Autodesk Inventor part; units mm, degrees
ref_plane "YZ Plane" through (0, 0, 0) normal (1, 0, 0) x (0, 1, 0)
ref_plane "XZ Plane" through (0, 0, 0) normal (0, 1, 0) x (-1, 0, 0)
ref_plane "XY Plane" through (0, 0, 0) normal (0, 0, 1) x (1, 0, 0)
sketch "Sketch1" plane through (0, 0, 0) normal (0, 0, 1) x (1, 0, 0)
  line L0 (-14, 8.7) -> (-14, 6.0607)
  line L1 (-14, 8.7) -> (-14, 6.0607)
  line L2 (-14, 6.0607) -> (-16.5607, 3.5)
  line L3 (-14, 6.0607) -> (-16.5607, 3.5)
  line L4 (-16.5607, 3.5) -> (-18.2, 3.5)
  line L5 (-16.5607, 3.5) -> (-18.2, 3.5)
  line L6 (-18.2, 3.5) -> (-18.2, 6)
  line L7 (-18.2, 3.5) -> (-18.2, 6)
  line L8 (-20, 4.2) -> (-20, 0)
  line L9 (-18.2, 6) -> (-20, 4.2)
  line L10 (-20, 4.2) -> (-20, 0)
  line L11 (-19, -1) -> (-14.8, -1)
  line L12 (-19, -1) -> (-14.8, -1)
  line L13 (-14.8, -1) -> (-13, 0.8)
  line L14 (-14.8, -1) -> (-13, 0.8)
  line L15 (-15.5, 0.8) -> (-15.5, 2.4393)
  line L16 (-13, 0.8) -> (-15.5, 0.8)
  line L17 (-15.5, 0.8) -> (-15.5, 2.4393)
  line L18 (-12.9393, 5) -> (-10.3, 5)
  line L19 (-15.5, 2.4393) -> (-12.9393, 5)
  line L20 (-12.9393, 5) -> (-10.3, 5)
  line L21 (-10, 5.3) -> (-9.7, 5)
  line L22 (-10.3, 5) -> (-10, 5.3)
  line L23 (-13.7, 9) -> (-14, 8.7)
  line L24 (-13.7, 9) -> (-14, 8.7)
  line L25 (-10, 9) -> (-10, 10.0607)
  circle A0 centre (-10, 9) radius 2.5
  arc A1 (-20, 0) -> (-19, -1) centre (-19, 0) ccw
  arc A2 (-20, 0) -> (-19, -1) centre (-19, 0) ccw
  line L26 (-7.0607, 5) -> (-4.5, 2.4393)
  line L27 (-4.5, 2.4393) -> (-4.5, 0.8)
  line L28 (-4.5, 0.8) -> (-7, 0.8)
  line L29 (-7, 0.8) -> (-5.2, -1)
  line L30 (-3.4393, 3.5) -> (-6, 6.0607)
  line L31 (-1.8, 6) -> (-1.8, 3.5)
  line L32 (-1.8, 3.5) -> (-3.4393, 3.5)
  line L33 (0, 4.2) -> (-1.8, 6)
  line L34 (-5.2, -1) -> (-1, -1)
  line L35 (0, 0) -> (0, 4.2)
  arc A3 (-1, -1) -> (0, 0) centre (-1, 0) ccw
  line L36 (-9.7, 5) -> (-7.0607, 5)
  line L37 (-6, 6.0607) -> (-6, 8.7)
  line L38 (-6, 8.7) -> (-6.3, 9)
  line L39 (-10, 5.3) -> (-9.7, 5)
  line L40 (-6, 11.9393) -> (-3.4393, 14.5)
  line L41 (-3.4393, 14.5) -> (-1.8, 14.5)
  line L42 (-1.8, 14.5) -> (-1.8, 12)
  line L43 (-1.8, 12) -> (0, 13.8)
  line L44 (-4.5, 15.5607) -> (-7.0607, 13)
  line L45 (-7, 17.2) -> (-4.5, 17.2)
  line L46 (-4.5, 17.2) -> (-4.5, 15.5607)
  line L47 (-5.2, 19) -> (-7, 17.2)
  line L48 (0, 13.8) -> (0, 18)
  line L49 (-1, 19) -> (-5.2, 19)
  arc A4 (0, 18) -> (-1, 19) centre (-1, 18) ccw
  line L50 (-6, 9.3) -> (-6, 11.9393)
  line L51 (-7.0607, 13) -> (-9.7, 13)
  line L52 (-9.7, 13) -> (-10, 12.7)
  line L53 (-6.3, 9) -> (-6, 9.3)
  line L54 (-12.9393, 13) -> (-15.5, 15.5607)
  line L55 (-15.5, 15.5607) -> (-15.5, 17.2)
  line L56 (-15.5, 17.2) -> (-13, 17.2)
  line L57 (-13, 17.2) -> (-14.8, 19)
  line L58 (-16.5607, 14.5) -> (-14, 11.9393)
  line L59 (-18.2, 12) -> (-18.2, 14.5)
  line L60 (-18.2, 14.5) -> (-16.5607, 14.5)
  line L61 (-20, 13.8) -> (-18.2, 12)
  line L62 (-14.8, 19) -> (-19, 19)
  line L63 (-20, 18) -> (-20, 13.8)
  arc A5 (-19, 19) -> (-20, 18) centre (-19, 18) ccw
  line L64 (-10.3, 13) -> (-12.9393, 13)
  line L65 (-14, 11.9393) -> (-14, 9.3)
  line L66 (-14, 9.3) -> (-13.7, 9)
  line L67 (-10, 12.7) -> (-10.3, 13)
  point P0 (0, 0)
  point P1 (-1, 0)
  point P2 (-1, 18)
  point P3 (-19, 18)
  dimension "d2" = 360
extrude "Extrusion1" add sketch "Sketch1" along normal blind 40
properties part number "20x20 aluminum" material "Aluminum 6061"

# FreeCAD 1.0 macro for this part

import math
import FreeCAD as App
import Part
import Sketcher
from FreeCAD import Vector
Q = App.Units.Quantity

doc = App.newDocument("Part")
params = doc.addObject("Spreadsheet::Sheet", "Params")
for row, (alias, value) in enumerate([
    ("sketch1_diameter", "5 mm"),
    ("sketch1_radius", "1 mm"),
    ("sketch1_width", "4.2 mm"),
    ("sketch1_width2", "2.5 mm"),
    ("pad1_length", "40 mm"),
], start=1):
    params.set(f"A{row}", alias)
    params.set(f"B{row}", "=" + value)
    params.setAlias(f"B{row}", alias)

body = doc.addObject("PartDesign::Body", "Body")

# Sketch on XY plane
sketch1 = body.newObject("Sketcher::SketchObject", "Sketch")
sketch1.AttachmentSupport = (doc.getObject("XY_Plane"), [""])
sketch1.MapMode = "FlatFace"
sketch1.addGeometry(Part.LineSegment(Vector(-13.7, 9, 0), Vector(-14, 8.7, 0)), False)
sketch1.addGeometry(Part.LineSegment(Vector(-14, 8.7, 0), Vector(-14, 6.06, 0)), False)
sketch1.addGeometry(Part.LineSegment(Vector(-14, 6.06, 0), Vector(-16.56, 3.5, 0)), False)
sketch1.addGeometry(Part.LineSegment(Vector(-16.56, 3.5, 0), Vector(-18.2, 3.5, 0)), False)
sketch1.addGeometry(Part.LineSegment(Vector(-18.2, 3.5, 0), Vector(-18.2, 6, 0)), False)
sketch1.addGeometry(Part.LineSegment(Vector(-18.2, 6, 0), Vector(-20, 4.2, 0)), False)
sketch1.addGeometry(Part.LineSegment(Vector(-20, 4.2, 0), Vector(-20, 0, 0)), False)
sketch1.addGeometry(Part.ArcOfCircle(Part.Circle(Vector(-19, 0, 0), Vector(0, 0, 1), 1), math.radians(180), math.radians(270)), False)
sketch1.addGeometry(Part.LineSegment(Vector(-19, -1, 0), Vector(-14.8, -1, 0)), False)
sketch1.addGeometry(Part.LineSegment(Vector(-14.8, -1, 0), Vector(-13, 0.8, 0)), False)
sketch1.addGeometry(Part.LineSegment(Vector(-13, 0.8, 0), Vector(-15.5, 0.8, 0)), False)
sketch1.addGeometry(Part.LineSegment(Vector(-15.5, 0.8, 0), Vector(-15.5, 2.44, 0)), False)
sketch1.addGeometry(Part.LineSegment(Vector(-15.5, 2.44, 0), Vector(-12.94, 5, 0)), False)
sketch1.addGeometry(Part.LineSegment(Vector(-12.94, 5, 0), Vector(-10.3, 5, 0)), False)
sketch1.addGeometry(Part.LineSegment(Vector(-10.3, 5, 0), Vector(-10, 5.3, 0)), False)
sketch1.addGeometry(Part.LineSegment(Vector(-10, 5.3, 0), Vector(-9.7, 5, 0)), False)
sketch1.addGeometry(Part.LineSegment(Vector(-9.7, 5, 0), Vector(-7.06, 5, 0)), False)
sketch1.addGeometry(Part.LineSegment(Vector(-7.06, 5, 0), Vector(-4.5, 2.44, 0)), False)
sketch1.addGeometry(Part.LineSegment(Vector(-4.5, 2.44, 0), Vector(-4.5, 0.8, 0)), False)
sketch1.addGeometry(Part.LineSegment(Vector(-4.5, 0.8, 0), Vector(-7, 0.8, 0)), False)
sketch1.addGeometry(Part.LineSegment(Vector(-7, 0.8, 0), Vector(-5.2, -1, 0)), False)
sketch1.addGeometry(Part.LineSegment(Vector(-5.2, -1, 0), Vector(-1, -1, 0)), False)
sketch1.addGeometry(Part.ArcOfCircle(Part.Circle(Vector(-1, 0, 0), Vector(0, 0, 1), 1), math.radians(-90), math.radians(0)), False)
sketch1.addGeometry(Part.LineSegment(Vector(0, 0, 0), Vector(0, 4.2, 0)), False)
sketch1.addGeometry(Part.LineSegment(Vector(0, 4.2, 0), Vector(-1.8, 6, 0)), False)
sketch1.addGeometry(Part.LineSegment(Vector(-1.8, 6, 0), Vector(-1.8, 3.5, 0)), False)
sketch1.addGeometry(Part.LineSegment(Vector(-1.8, 3.5, 0), Vector(-3.44, 3.5, 0)), False)
sketch1.addGeometry(Part.LineSegment(Vector(-3.44, 3.5, 0), Vector(-6, 6.06, 0)), False)
sketch1.addGeometry(Part.LineSegment(Vector(-6, 6.06, 0), Vector(-6, 8.7, 0)), False)
sketch1.addGeometry(Part.LineSegment(Vector(-6, 8.7, 0), Vector(-6.3, 9, 0)), False)
sketch1.addGeometry(Part.LineSegment(Vector(-6.3, 9, 0), Vector(-6, 9.3, 0)), False)
sketch1.addGeometry(Part.LineSegment(Vector(-6, 9.3, 0), Vector(-6, 11.94, 0)), False)
sketch1.addGeometry(Part.LineSegment(Vector(-6, 11.94, 0), Vector(-3.44, 14.5, 0)), False)
sketch1.addGeometry(Part.LineSegment(Vector(-3.44, 14.5, 0), Vector(-1.8, 14.5, 0)), False)
sketch1.addGeometry(Part.LineSegment(Vector(-1.8, 14.5, 0), Vector(-1.8, 12, 0)), False)
sketch1.addGeometry(Part.LineSegment(Vector(-1.8, 12, 0), Vector(0, 13.8, 0)), False)
sketch1.addGeometry(Part.LineSegment(Vector(0, 13.8, 0), Vector(0, 18, 0)), False)
sketch1.addGeometry(Part.ArcOfCircle(Part.Circle(Vector(-1, 18, 0), Vector(0, 0, 1), 1), math.radians(0), math.radians(90)), False)
sketch1.addGeometry(Part.LineSegment(Vector(-1, 19, 0), Vector(-5.2, 19, 0)), False)
sketch1.addGeometry(Part.LineSegment(Vector(-5.2, 19, 0), Vector(-7, 17.2, 0)), False)
sketch1.addGeometry(Part.LineSegment(Vector(-7, 17.2, 0), Vector(-4.5, 17.2, 0)), False)
sketch1.addGeometry(Part.LineSegment(Vector(-4.5, 17.2, 0), Vector(-4.5, 15.56, 0)), False)
sketch1.addGeometry(Part.LineSegment(Vector(-4.5, 15.56, 0), Vector(-7.06, 13, 0)), False)
sketch1.addGeometry(Part.LineSegment(Vector(-7.06, 13, 0), Vector(-9.7, 13, 0)), False)
sketch1.addGeometry(Part.LineSegment(Vector(-9.7, 13, 0), Vector(-10, 12.7, 0)), False)
sketch1.addGeometry(Part.LineSegment(Vector(-10, 12.7, 0), Vector(-10.3, 13, 0)), False)
sketch1.addGeometry(Part.LineSegment(Vector(-10.3, 13, 0), Vector(-12.94, 13, 0)), False)
sketch1.addGeometry(Part.LineSegment(Vector(-12.94, 13, 0), Vector(-15.5, 15.56, 0)), False)
sketch1.addGeometry(Part.LineSegment(Vector(-15.5, 15.56, 0), Vector(-15.5, 17.2, 0)), False)
sketch1.addGeometry(Part.LineSegment(Vector(-15.5, 17.2, 0), Vector(-13, 17.2, 0)), False)
sketch1.addGeometry(Part.LineSegment(Vector(-13, 17.2, 0), Vector(-14.8, 19, 0)), False)
sketch1.addGeometry(Part.LineSegment(Vector(-14.8, 19, 0), Vector(-19, 19, 0)), False)
sketch1.addGeometry(Part.ArcOfCircle(Part.Circle(Vector(-19, 18, 0), Vector(0, 0, 1), 1), math.radians(90), math.radians(180)), False)
sketch1.addGeometry(Part.LineSegment(Vector(-20, 18, 0), Vector(-20, 13.8, 0)), False)
sketch1.addGeometry(Part.LineSegment(Vector(-20, 13.8, 0), Vector(-18.2, 12, 0)), False)
sketch1.addGeometry(Part.LineSegment(Vector(-18.2, 12, 0), Vector(-18.2, 14.5, 0)), False)
sketch1.addGeometry(Part.LineSegment(Vector(-18.2, 14.5, 0), Vector(-16.56, 14.5, 0)), False)
sketch1.addGeometry(Part.LineSegment(Vector(-16.56, 14.5, 0), Vector(-14, 11.94, 0)), False)
sketch1.addGeometry(Part.LineSegment(Vector(-14, 11.94, 0), Vector(-14, 9.3, 0)), False)
sketch1.addGeometry(Part.LineSegment(Vector(-14, 9.3, 0), Vector(-13.7, 9, 0)), False)
sketch1.addGeometry(Part.Circle(Vector(-10, 9, 0), Vector(0, 0, 1), 2.5), False)
sketch1.addConstraint(Sketcher.Constraint("Coincident", 0, 2, 1, 1))
sketch1.addConstraint(Sketcher.Constraint("Coincident", 1, 2, 2, 1))
sketch1.addConstraint(Sketcher.Constraint("Coincident", 2, 2, 3, 1))
sketch1.addConstraint(Sketcher.Constraint("Coincident", 3, 2, 4, 1))
sketch1.addConstraint(Sketcher.Constraint("Coincident", 4, 2, 5, 1))
sketch1.addConstraint(Sketcher.Constraint("Coincident", 5, 2, 6, 1))
sketch1.addConstraint(Sketcher.Constraint("Tangent", 6, 2, 7, 1))
sketch1.addConstraint(Sketcher.Constraint("Tangent", 7, 2, 8, 1))
sketch1.addConstraint(Sketcher.Constraint("Coincident", 8, 2, 9, 1))
sketch1.addConstraint(Sketcher.Constraint("Coincident", 9, 2, 10, 1))
sketch1.addConstraint(Sketcher.Constraint("Coincident", 10, 2, 11, 1))
sketch1.addConstraint(Sketcher.Constraint("Coincident", 11, 2, 12, 1))
sketch1.addConstraint(Sketcher.Constraint("Coincident", 12, 2, 13, 1))
sketch1.addConstraint(Sketcher.Constraint("Coincident", 13, 2, 14, 1))
sketch1.addConstraint(Sketcher.Constraint("Coincident", 14, 2, 15, 1))
sketch1.addConstraint(Sketcher.Constraint("Coincident", 15, 2, 16, 1))
sketch1.addConstraint(Sketcher.Constraint("Coincident", 16, 2, 17, 1))
sketch1.addConstraint(Sketcher.Constraint("Coincident", 17, 2, 18, 1))
sketch1.addConstraint(Sketcher.Constraint("Coincident", 18, 2, 19, 1))
sketch1.addConstraint(Sketcher.Constraint("Coincident", 19, 2, 20, 1))
sketch1.addConstraint(Sketcher.Constraint("Coincident", 20, 2, 21, 1))
sketch1.addConstraint(Sketcher.Constraint("Tangent", 21, 2, 22, 1))
sketch1.addConstraint(Sketcher.Constraint("Tangent", 22, 2, 23, 1))
sketch1.addConstraint(Sketcher.Constraint("Coincident", 23, 2, 24, 1))
sketch1.addConstraint(Sketcher.Constraint("Coincident", 24, 2, 25, 1))
sketch1.addConstraint(Sketcher.Constraint("Coincident", 25, 2, 26, 1))
sketch1.addConstraint(Sketcher.Constraint("Coincident", 26, 2, 27, 1))
sketch1.addConstraint(Sketcher.Constraint("Coincident", 27, 2, 28, 1))
sketch1.addConstraint(Sketcher.Constraint("Coincident", 28, 2, 29, 1))
sketch1.addConstraint(Sketcher.Constraint("Coincident", 29, 2, 30, 1))
sketch1.addConstraint(Sketcher.Constraint("Coincident", 30, 2, 31, 1))
sketch1.addConstraint(Sketcher.Constraint("Coincident", 31, 2, 32, 1))
sketch1.addConstraint(Sketcher.Constraint("Coincident", 32, 2, 33, 1))
sketch1.addConstraint(Sketcher.Constraint("Coincident", 33, 2, 34, 1))
sketch1.addConstraint(Sketcher.Constraint("Coincident", 34, 2, 35, 1))
sketch1.addConstraint(Sketcher.Constraint("Coincident", 35, 2, 36, 1))
sketch1.addConstraint(Sketcher.Constraint("Tangent", 36, 2, 37, 1))
sketch1.addConstraint(Sketcher.Constraint("Tangent", 37, 2, 38, 1))
sketch1.addConstraint(Sketcher.Constraint("Coincident", 38, 2, 39, 1))
sketch1.addConstraint(Sketcher.Constraint("Coincident", 39, 2, 40, 1))
sketch1.addConstraint(Sketcher.Constraint("Coincident", 40, 2, 41, 1))
sketch1.addConstraint(Sketcher.Constraint("Coincident", 41, 2, 42, 1))
sketch1.addConstraint(Sketcher.Constraint("Coincident", 42, 2, 43, 1))
sketch1.addConstraint(Sketcher.Constraint("Coincident", 43, 2, 44, 1))
sketch1.addConstraint(Sketcher.Constraint("Coincident", 44, 2, 45, 1))
sketch1.addConstraint(Sketcher.Constraint("Coincident", 45, 2, 46, 1))
sketch1.addConstraint(Sketcher.Constraint("Coincident", 46, 2, 47, 1))
sketch1.addConstraint(Sketcher.Constraint("Coincident", 47, 2, 48, 1))
sketch1.addConstraint(Sketcher.Constraint("Coincident", 48, 2, 49, 1))
sketch1.addConstraint(Sketcher.Constraint("Coincident", 49, 2, 50, 1))
sketch1.addConstraint(Sketcher.Constraint("Coincident", 50, 2, 51, 1))
sketch1.addConstraint(Sketcher.Constraint("Tangent", 51, 2, 52, 1))
sketch1.addConstraint(Sketcher.Constraint("Tangent", 52, 2, 53, 1))
sketch1.addConstraint(Sketcher.Constraint("Coincident", 53, 2, 54, 1))
sketch1.addConstraint(Sketcher.Constraint("Coincident", 54, 2, 55, 1))
sketch1.addConstraint(Sketcher.Constraint("Coincident", 55, 2, 56, 1))
sketch1.addConstraint(Sketcher.Constraint("Coincident", 56, 2, 57, 1))
sketch1.addConstraint(Sketcher.Constraint("Coincident", 57, 2, 58, 1))
sketch1.addConstraint(Sketcher.Constraint("Coincident", 58, 2, 59, 1))
sketch1.addConstraint(Sketcher.Constraint("Coincident", 59, 2, 0, 1))
sketch1.addConstraint(Sketcher.Constraint("Vertical", 1))
sketch1.addConstraint(Sketcher.Constraint("Horizontal", 3))
sketch1.addConstraint(Sketcher.Constraint("Vertical", 4))
sketch1.addConstraint(Sketcher.Constraint("Vertical", 6))
sketch1.addConstraint(Sketcher.Constraint("Horizontal", 8))
sketch1.addConstraint(Sketcher.Constraint("Horizontal", 10))
sketch1.addConstraint(Sketcher.Constraint("Vertical", 11))
sketch1.addConstraint(Sketcher.Constraint("Horizontal", 13))
sketch1.addConstraint(Sketcher.Constraint("Horizontal", 16))
sketch1.addConstraint(Sketcher.Constraint("Vertical", 18))
sketch1.addConstraint(Sketcher.Constraint("Horizontal", 19))
sketch1.addConstraint(Sketcher.Constraint("Horizontal", 21))
sketch1.addConstraint(Sketcher.Constraint("Vertical", 23))
sketch1.addConstraint(Sketcher.Constraint("Vertical", 25))
sketch1.addConstraint(Sketcher.Constraint("Horizontal", 26))
sketch1.addConstraint(Sketcher.Constraint("Vertical", 28))
sketch1.addConstraint(Sketcher.Constraint("Vertical", 31))
sketch1.addConstraint(Sketcher.Constraint("Horizontal", 33))
sketch1.addConstraint(Sketcher.Constraint("Vertical", 34))
sketch1.addConstraint(Sketcher.Constraint("Vertical", 36))
sketch1.addConstraint(Sketcher.Constraint("Horizontal", 38))
sketch1.addConstraint(Sketcher.Constraint("Horizontal", 40))
sketch1.addConstraint(Sketcher.Constraint("Vertical", 41))
sketch1.addConstraint(Sketcher.Constraint("Horizontal", 43))
sketch1.addConstraint(Sketcher.Constraint("Horizontal", 46))
sketch1.addConstraint(Sketcher.Constraint("Vertical", 48))
sketch1.addConstraint(Sketcher.Constraint("Horizontal", 49))
sketch1.addConstraint(Sketcher.Constraint("Horizontal", 51))
sketch1.addConstraint(Sketcher.Constraint("Vertical", 53))
sketch1.addConstraint(Sketcher.Constraint("Vertical", 55))
sketch1.addConstraint(Sketcher.Constraint("Horizontal", 56))
sketch1.addConstraint(Sketcher.Constraint("Vertical", 58))
sketch1.addConstraint(Sketcher.Constraint("Coincident", 22, 2, -1, 1))
sketch1.addConstraint(Sketcher.Constraint("Equal", 7, 22))
sketch1.addConstraint(Sketcher.Constraint("Equal", 22, 37))
sketch1.addConstraint(Sketcher.Constraint("Equal", 37, 52))
sketch1.addConstraint(Sketcher.Constraint("PointOnObject", 7, 3, -1))
sketch1.addConstraint(Sketcher.Constraint("PointOnObject", 35, 2, -2))
sketch1.addConstraint(Sketcher.Constraint("Parallel", 0, 2))
sketch1.addConstraint(Sketcher.Constraint("Parallel", 2, 5))
sketch1.addConstraint(Sketcher.Constraint("Parallel", 5, 9))
sketch1.addConstraint(Sketcher.Constraint("Parallel", 9, 12))
sketch1.addConstraint(Sketcher.Constraint("Parallel", 12, 14))
sketch1.addConstraint(Sketcher.Constraint("Perpendicular", 14, 15))
sketch1.addConstraint(Sketcher.Constraint("Parallel", 15, 17))
sketch1.addConstraint(Sketcher.Constraint("Parallel", 17, 20))
sketch1.addConstraint(Sketcher.Constraint("Parallel", 20, 24))
sketch1.addConstraint(Sketcher.Constraint("Parallel", 24, 27))
sketch1.addConstraint(Sketcher.Constraint("Parallel", 27, 29))
sketch1.addConstraint(Sketcher.Constraint("Perpendicular", 29, 30))
sketch1.addConstraint(Sketcher.Constraint("Parallel", 30, 32))
sketch1.addConstraint(Sketcher.Constraint("Parallel", 32, 35))
sketch1.addConstraint(Sketcher.Constraint("Parallel", 35, 39))
sketch1.addConstraint(Sketcher.Constraint("Parallel", 39, 42))
sketch1.addConstraint(Sketcher.Constraint("Parallel", 42, 44))
sketch1.addConstraint(Sketcher.Constraint("Perpendicular", 44, 45))
sketch1.addConstraint(Sketcher.Constraint("Parallel", 45, 47))
sketch1.addConstraint(Sketcher.Constraint("Parallel", 47, 50))
sketch1.addConstraint(Sketcher.Constraint("Parallel", 50, 54))
sketch1.addConstraint(Sketcher.Constraint("Parallel", 54, 57))
sketch1.addConstraint(Sketcher.Constraint("Parallel", 57, 59))
sketch1.addConstraint(Sketcher.Constraint("Horizontal", 37, 3, 52, 3))
sketch1.addConstraint(Sketcher.Constraint("Horizontal", 13, 2, 15, 2))
sketch1.addConstraint(Sketcher.Constraint("Horizontal", 11, 2, 17, 2))
sketch1.addConstraint(Sketcher.Constraint("Horizontal", 10, 2, 18, 2))
sketch1.addConstraint(Sketcher.Constraint("Horizontal", 5, 2, 23, 2))
sketch1.addConstraint(Sketcher.Constraint("Horizontal", 4, 2, 24, 2))
sketch1.addConstraint(Sketcher.Constraint("Horizontal", 3, 2, 25, 2))
sketch1.addConstraint(Sketcher.Constraint("Horizontal", 1, 2, 27, 2))
sketch1.addConstraint(Sketcher.Constraint("Horizontal", 0, 2, 28, 2))
sketch1.addConstraint(Sketcher.Constraint("Horizontal", 60, 3, 29, 2))
sketch1.addConstraint(Sketcher.Constraint("Horizontal", 43, 2, 45, 2))
sketch1.addConstraint(Sketcher.Constraint("Horizontal", 41, 2, 47, 2))
sketch1.addConstraint(Sketcher.Constraint("Horizontal", 40, 2, 48, 2))
sketch1.addConstraint(Sketcher.Constraint("Horizontal", 35, 2, 53, 2))
sketch1.addConstraint(Sketcher.Constraint("Horizontal", 34, 2, 54, 2))
sketch1.addConstraint(Sketcher.Constraint("Horizontal", 33, 2, 55, 2))
sketch1.addConstraint(Sketcher.Constraint("Horizontal", 31, 2, 57, 2))
sketch1.addConstraint(Sketcher.Constraint("Horizontal", 30, 2, 58, 2))
sketch1.addConstraint(Sketcher.Constraint("Horizontal", 29, 2, 59, 2))
sketch1.addConstraint(Sketcher.Constraint("Vertical", 7, 3, 52, 3))
sketch1.addConstraint(Sketcher.Constraint("Vertical", 60, 3, 14, 2))
sketch1.addConstraint(Sketcher.Constraint("Vertical", 28, 2, 30, 2))
sketch1.addConstraint(Sketcher.Constraint("Vertical", 26, 2, 32, 2))
sketch1.addConstraint(Sketcher.Constraint("Vertical", 25, 2, 33, 2))
sketch1.addConstraint(Sketcher.Constraint("Vertical", 20, 2, 38, 2))
sketch1.addConstraint(Sketcher.Constraint("Vertical", 19, 2, 39, 2))
sketch1.addConstraint(Sketcher.Constraint("Vertical", 18, 2, 40, 2))
sketch1.addConstraint(Sketcher.Constraint("Vertical", 16, 2, 42, 2))
sketch1.addConstraint(Sketcher.Constraint("Vertical", 15, 2, 43, 2))
sketch1.addConstraint(Sketcher.Constraint("Vertical", 14, 2, 44, 2))
sketch1.addConstraint(Sketcher.Constraint("Vertical", 13, 2, 45, 2))
sketch1.addConstraint(Sketcher.Constraint("Vertical", 12, 2, 46, 2))
sketch1.addConstraint(Sketcher.Constraint("Vertical", 9, 2, 49, 2))
sketch1.addConstraint(Sketcher.Constraint("Equal", 13, 16))
sketch1.addConstraint(Sketcher.Constraint("Equal", 10, 19))
sketch1.addConstraint(Sketcher.Constraint("Equal", 8, 21))
sketch1.addConstraint(Sketcher.Constraint("Equal", 3, 26))
sketch1.addConstraint(Sketcher.Constraint("Equal", 46, 1))
sketch1.addConstraint(Sketcher.Constraint("Equal", 49, 4))
sketch1.addConstraint(Sketcher.Constraint("Equal", 51, 6))
sketch1.addConstraint(Sketcher.Constraint("Equal", 56, 11))
sketch1.addConstraint(Sketcher.Constraint("Equal", 28, 31))
sketch1.addConstraint(Sketcher.Constraint("Equal", 25, 34))
sketch1.addConstraint(Sketcher.Constraint("Equal", 23, 36))
sketch1.addConstraint(Sketcher.Constraint("Equal", 18, 41))
sketch1.addConstraint(Sketcher.Constraint("Equal", 5, 9))
sketch1.addConstraint(Sketcher.Constraint("Equal", 2, 12))
sketch1.addConstraint(Sketcher.Constraint("Equal", 0, 14))
sketch1.addConstraint(Sketcher.Constraint("Diameter", 60, Q("5 mm")))
sketch1.addConstraint(Sketcher.Constraint("Radius", 7, Q("1 mm")))
sketch1.addConstraint(Sketcher.Constraint("DistanceX", 8, 1, 8, 2, Q("4.2 mm")))
sketch1.addConstraint(Sketcher.Constraint("DistanceX", 10, 2, 10, 1, Q("2.5 mm")))
sketch1.addConstraint(Sketcher.Constraint("DistanceX", 7, 3, -1, 1, Q("19 mm")))
sketch1.addConstraint(Sketcher.Constraint("DistanceX", 0, 2, -1, 1, Q("14 mm")))
sketch1.addConstraint(Sketcher.Constraint("DistanceY", -1, 1, 4, 2, Q("6 mm")))
sketch1.addConstraint(Sketcher.Constraint("DistanceY", -1, 1, 0, 2, Q("8.7 mm")))
sketch1.addConstraint(Sketcher.Constraint("DistanceX", 3, 2, 3, 1, Q("1.6393 mm")))
sketch1.setExpression("Constraints[169]", "Params.sketch1_diameter")
sketch1.setExpression("Constraints[170]", "Params.sketch1_radius")
sketch1.setExpression("Constraints[171]", "Params.sketch1_width")
sketch1.setExpression("Constraints[172]", "Params.sketch1_width2")
pad1 = body.newObject("PartDesign::Pad", "Pad")
pad1.Profile = sketch1
pad1.setExpression("Length", "Params.pad1_length")

doc.recompute()
